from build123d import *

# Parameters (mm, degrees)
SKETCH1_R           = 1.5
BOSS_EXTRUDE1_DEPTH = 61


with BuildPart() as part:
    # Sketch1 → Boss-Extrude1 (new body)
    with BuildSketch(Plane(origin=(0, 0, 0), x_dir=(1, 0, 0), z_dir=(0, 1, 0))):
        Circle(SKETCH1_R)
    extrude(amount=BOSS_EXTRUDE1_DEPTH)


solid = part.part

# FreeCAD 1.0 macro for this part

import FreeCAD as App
import Part
import Sketcher

doc = App.newDocument("Part")
body = doc.addObject("PartDesign::Body", "Body")

# Sketch on XZ plane
sketch1 = body.newObject("Sketcher::SketchObject", "Sketch")
sketch1.AttachmentSupport = (doc.getObject("XZ_Plane"), [""])
sketch1.MapMode = "FlatFace"
sketch1.addGeometry(Part.Circle(App.Vector(0, 0, 0), App.Vector(0, 0, 1), 1.5), False)
sketch1.addConstraint([
    Sketcher.Constraint("Coincident", 0, 3, -1, 1),
    Sketcher.Constraint("Diameter", 0, 3.0),
])
pad1 = body.newObject("PartDesign::Pad", "Pad")
pad1.Profile = sketch1
pad1.Length = 61
pad1.Reversed = True

doc.recompute()
